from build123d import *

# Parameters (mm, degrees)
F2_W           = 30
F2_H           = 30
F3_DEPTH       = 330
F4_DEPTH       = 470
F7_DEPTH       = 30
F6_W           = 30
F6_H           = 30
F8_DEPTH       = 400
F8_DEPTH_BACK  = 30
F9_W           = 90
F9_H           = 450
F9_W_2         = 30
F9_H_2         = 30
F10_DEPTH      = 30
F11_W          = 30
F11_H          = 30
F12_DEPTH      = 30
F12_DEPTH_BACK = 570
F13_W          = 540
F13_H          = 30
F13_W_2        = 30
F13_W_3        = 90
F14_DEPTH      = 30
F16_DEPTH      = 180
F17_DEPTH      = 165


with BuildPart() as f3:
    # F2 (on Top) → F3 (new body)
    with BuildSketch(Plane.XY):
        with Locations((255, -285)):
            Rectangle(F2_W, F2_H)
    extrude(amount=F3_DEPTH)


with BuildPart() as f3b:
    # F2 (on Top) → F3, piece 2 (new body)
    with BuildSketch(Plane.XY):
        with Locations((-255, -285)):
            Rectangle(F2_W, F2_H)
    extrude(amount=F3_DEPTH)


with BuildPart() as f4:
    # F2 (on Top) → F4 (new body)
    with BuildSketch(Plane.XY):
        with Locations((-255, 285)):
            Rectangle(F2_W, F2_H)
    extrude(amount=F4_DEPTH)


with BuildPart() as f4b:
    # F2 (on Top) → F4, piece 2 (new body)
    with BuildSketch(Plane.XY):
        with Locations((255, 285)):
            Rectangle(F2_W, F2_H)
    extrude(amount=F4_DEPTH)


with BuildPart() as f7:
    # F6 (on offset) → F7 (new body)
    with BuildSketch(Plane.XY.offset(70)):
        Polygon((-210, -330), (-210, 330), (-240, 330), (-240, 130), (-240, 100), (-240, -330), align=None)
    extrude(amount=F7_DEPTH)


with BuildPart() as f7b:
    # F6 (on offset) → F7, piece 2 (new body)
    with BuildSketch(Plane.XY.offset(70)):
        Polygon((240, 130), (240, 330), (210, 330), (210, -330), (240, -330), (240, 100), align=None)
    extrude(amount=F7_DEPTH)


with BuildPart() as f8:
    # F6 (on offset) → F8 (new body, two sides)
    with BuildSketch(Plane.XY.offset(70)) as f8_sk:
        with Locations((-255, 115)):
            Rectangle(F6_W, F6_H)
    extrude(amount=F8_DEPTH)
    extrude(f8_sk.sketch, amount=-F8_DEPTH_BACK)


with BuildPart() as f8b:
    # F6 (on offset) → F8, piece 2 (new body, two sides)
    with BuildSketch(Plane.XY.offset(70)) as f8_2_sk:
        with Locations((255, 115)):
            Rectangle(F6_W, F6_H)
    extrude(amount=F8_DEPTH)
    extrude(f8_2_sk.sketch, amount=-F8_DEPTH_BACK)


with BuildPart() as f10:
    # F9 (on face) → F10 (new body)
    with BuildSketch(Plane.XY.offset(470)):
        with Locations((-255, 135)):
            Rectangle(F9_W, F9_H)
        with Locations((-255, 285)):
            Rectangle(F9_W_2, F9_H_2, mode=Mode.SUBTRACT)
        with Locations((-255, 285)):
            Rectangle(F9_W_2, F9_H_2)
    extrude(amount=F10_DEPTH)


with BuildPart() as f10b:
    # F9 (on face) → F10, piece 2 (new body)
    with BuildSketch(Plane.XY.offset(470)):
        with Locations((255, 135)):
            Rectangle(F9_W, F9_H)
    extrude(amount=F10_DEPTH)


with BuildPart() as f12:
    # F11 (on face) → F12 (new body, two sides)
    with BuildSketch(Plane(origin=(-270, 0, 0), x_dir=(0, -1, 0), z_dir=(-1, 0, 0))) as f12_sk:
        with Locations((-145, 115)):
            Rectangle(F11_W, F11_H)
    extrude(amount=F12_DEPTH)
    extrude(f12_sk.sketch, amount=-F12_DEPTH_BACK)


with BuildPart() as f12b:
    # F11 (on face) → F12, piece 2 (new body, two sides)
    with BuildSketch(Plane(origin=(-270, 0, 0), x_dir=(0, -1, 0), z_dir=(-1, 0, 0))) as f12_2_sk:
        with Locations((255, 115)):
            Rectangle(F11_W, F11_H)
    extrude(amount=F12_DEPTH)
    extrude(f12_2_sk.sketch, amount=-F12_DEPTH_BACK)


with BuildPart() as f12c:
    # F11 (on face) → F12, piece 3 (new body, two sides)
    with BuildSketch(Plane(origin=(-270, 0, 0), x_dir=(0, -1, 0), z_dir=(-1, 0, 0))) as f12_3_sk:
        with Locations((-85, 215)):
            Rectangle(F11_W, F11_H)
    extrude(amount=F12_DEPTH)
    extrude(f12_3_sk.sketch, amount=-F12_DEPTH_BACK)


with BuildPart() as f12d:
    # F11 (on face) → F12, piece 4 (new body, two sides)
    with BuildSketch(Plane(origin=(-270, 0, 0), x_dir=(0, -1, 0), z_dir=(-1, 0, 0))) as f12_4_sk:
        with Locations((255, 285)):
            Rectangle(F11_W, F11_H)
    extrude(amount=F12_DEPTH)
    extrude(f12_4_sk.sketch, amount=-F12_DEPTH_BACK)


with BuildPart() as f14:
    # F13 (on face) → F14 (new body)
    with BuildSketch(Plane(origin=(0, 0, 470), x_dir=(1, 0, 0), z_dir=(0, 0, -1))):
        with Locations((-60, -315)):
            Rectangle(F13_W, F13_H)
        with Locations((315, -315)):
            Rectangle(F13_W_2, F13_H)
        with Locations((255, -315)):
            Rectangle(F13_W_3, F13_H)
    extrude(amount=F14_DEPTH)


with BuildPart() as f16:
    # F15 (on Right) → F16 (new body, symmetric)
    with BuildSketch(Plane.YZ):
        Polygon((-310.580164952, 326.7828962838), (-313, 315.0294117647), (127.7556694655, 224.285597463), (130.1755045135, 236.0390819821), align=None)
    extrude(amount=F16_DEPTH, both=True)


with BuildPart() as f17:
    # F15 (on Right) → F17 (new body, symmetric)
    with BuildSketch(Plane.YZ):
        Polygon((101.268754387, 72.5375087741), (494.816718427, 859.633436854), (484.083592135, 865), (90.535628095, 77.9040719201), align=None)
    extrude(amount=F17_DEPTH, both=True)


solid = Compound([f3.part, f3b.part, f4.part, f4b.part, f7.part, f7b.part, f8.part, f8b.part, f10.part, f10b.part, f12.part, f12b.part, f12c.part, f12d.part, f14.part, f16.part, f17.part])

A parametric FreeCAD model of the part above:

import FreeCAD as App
import Part
import Sketcher


def add_polygon(sketch, points):
    """Adds a closed chain of lines whose ends are joined by coincident constraints."""
    first, n = sketch.GeometryCount, len(points)
    for a, b in zip(points, points[1:] + points[:1]):
        sketch.addGeometry(Part.LineSegment(App.Vector(*a, 0), App.Vector(*b, 0)), False)
    for i in range(n):
        sketch.addConstraint(Sketcher.Constraint("Coincident", first + i, 2, first + (i + 1) % n, 1))

doc = App.newDocument("Part")
params = doc.addObject("Spreadsheet::Sheet", "Params")
for row, (alias, value) in enumerate([
    ("sketch1_width", "30 mm"),
    ("pad1_length", "330 mm"),
    ("sketch2_width", "30 mm"),
    ("pad2_length", "330 mm"),
    ("sketch3_width", "30 mm"),
    ("pad3_length", "470 mm"),
    ("sketch4_width", "30 mm"),
    ("pad4_length", "470 mm"),
    ("sketch5_width", "30 mm"),
    ("sketch5_height", "660 mm"),
    ("pad5_length", "30 mm"),
    ("sketch6_width", "30 mm"),
    ("sketch6_height", "660 mm"),
    ("pad6_length", "30 mm"),
    ("sketch7_width", "30 mm"),
    ("pad7_length", "400 mm"),
    ("pad7_length2", "30 mm"),
    ("sketch8_width", "30 mm"),
    ("pad8_length", "400 mm"),
    ("pad8_length2", "30 mm"),
    ("sketch9_width", "90 mm"),
    ("sketch9_height", "450 mm"),
    ("pad9_length", "30 mm"),
    ("sketch10_width", "90 mm"),
    ("sketch10_height", "450 mm"),
    ("pad10_length", "30 mm"),
    ("sketch11_width", "30 mm"),
    ("pad11_length", "30 mm"),
    ("pad11_length2", "570 mm"),
    ("sketch12_width", "30 mm"),
    ("pad12_length", "30 mm"),
    ("pad12_length2", "570 mm"),
    ("sketch13_width", "30 mm"),
    ("pad13_length", "30 mm"),
    ("pad13_length2", "570 mm"),
    ("sketch14_width", "30 mm"),
    ("pad14_length", "30 mm"),
    ("pad14_length2", "570 mm"),
    ("sketch15_width", "660 mm"),
    ("sketch15_height", "30 mm"),
    ("pad15_length", "30 mm"),
    ("sketch16_length", "12 mm"),
    ("sketch16_length2", "450 mm"),
    ("pad16_length", "360 mm"),
    ("sketch17_length", "880 mm"),
    ("sketch17_length2", "12 mm"),
    ("pad17_length", "330 mm"),
], start=1):
    params.set(f"A{row}", alias)
    params.set(f"B{row}", "=" + value)
    params.setAlias(f"B{row}", alias)

body = doc.addObject("PartDesign::Body", "Body")

# Sketch on XY plane
sketch1 = doc.addObject("Sketcher::SketchObject", "Sketch")
body.addObject(sketch1)
sketch1.AttachmentSupport = (doc.XY_Plane, [""])
sketch1.MapMode = "FlatFace"
add_polygon(sketch1, [(240, -270), (240, -300), (270, -300), (270, -270)])  # lines 0-3
sketch1.addConstraint([
    Sketcher.Constraint("Vertical", 0),
    Sketcher.Constraint("Horizontal", 1),
    Sketcher.Constraint("Vertical", 2),
    Sketcher.Constraint("Horizontal", 3),
    Sketcher.Constraint("Equal", 3, 0),
    Sketcher.Constraint("DistanceX", 1, 1, 1, 2, 30.0),
    Sketcher.Constraint("DistanceX", -1, 1, 0, 2, 240.0),
    Sketcher.Constraint("DistanceY", 0, 2, -1, 1, 300.0),
])
sketch1.setExpression("Constraints[9]", "Params.sketch1_width")
pad1 = doc.addObject("PartDesign::Pad", "Pad")
body.addObject(pad1)
pad1.Profile = sketch1
pad1.setExpression("Length", "Params.pad1_length")
body2 = doc.addObject("PartDesign::Body", "Body001")

# Sketch on XY plane
sketch2 = doc.addObject("Sketcher::SketchObject", "Sketch001")
body2.addObject(sketch2)
sketch2.AttachmentSupport = (doc.getObject("XY_Plane001"), [""])
sketch2.MapMode = "FlatFace"
add_polygon(sketch2, [(-270, -270), (-270, -300), (-240, -300), (-240, -270)])  # lines 0-3
sketch2.addConstraint([
    Sketcher.Constraint("Vertical", 0),
    Sketcher.Constraint("Horizontal", 1),
    Sketcher.Constraint("Vertical", 2),
    Sketcher.Constraint("Horizontal", 3),
    Sketcher.Constraint("Equal", 3, 0),
    Sketcher.Constraint("DistanceX", 1, 1, 1, 2, 30.0),
    Sketcher.Constraint("DistanceX", 0, 2, -1, 1, 270.0),
    Sketcher.Constraint("DistanceY", 0, 2, -1, 1, 300.0),
])
sketch2.setExpression("Constraints[9]", "Params.sketch2_width")
pad2 = doc.addObject("PartDesign::Pad", "Pad001")
body2.addObject(pad2)
pad2.Profile = sketch2
pad2.setExpression("Length", "Params.pad2_length")
body3 = doc.addObject("PartDesign::Body", "Body002")

# Sketch on XY plane
sketch3 = doc.addObject("Sketcher::SketchObject", "Sketch002")
body3.addObject(sketch3)
sketch3.AttachmentSupport = (doc.getObject("XY_Plane002"), [""])
sketch3.MapMode = "FlatFace"
add_polygon(sketch3, [(-270, 300), (-270, 270), (-240, 270), (-240, 300)])  # lines 0-3
sketch3.addConstraint([
    Sketcher.Constraint("Vertical", 0),
    Sketcher.Constraint("Horizontal", 1),
    Sketcher.Constraint("Vertical", 2),
    Sketcher.Constraint("Horizontal", 3),
    Sketcher.Constraint("Equal", 3, 0),
    Sketcher.Constraint("DistanceX", 1, 1, 1, 2, 30.0),
    Sketcher.Constraint("DistanceX", 0, 2, -1, 1, 270.0),
    Sketcher.Constraint("DistanceY", -1, 1, 0, 2, 270.0),
])
sketch3.setExpression("Constraints[9]", "Params.sketch3_width")
pad3 = doc.addObject("PartDesign::Pad", "Pad002")
body3.addObject(pad3)
pad3.Profile = sketch3
pad3.setExpression("Length", "Params.pad3_length")
body4 = doc.addObject("PartDesign::Body", "Body003")

# Sketch on XY plane
sketch4 = doc.addObject("Sketcher::SketchObject", "Sketch003")
body4.addObject(sketch4)
sketch4.AttachmentSupport = (doc.getObject("XY_Plane003"), [""])
sketch4.MapMode = "FlatFace"
add_polygon(sketch4, [(240, 300), (240, 270), (270, 270), (270, 300)])  # lines 0-3
sketch4.addConstraint([
    Sketcher.Constraint("Vertical", 0),
    Sketcher.Constraint("Horizontal", 1),
    Sketcher.Constraint("Vertical", 2),
    Sketcher.Constraint("Horizontal", 3),
    Sketcher.Constraint("Equal", 3, 0),
    Sketcher.Constraint("DistanceX", 1, 1, 1, 2, 30.0),
    Sketcher.Constraint("DistanceX", -1, 1, 0, 2, 240.0),
    Sketcher.Constraint("DistanceY", -1, 1, 0, 2, 270.0),
])
sketch4.setExpression("Constraints[9]", "Params.sketch4_width")
pad4 = doc.addObject("PartDesign::Pad", "Pad003")
body4.addObject(pad4)
pad4.Profile = sketch4
pad4.setExpression("Length", "Params.pad4_length")
body5 = doc.addObject("PartDesign::Body", "Body004")

# Sketch on XY plane
sketch5 = doc.addObject("Sketcher::SketchObject", "Sketch004")
body5.addObject(sketch5)
sketch5.AttachmentSupport = (doc.getObject("XY_Plane004"), [""])
sketch5.MapMode = "FlatFace"
sketch5.AttachmentOffset = App.Placement(App.Vector(0, 0, 70), App.Rotation())
add_polygon(sketch5, [(-210, -330), (-210, 330), (-240, 330), (-240, -330)])  # lines 0-3
sketch5.addConstraint([
    Sketcher.Constraint("Vertical", 0),
    Sketcher.Constraint("Horizontal", 1),
    Sketcher.Constraint("Vertical", 2),
    Sketcher.Constraint("Horizontal", 3),
    Sketcher.Constraint("DistanceX", 1, 2, 1, 1, 30.0),
    Sketcher.Constraint("DistanceY", 0, 1, 0, 2, 660.0),
    Sketcher.Constraint("DistanceX", 0, 2, -1, 1, 210.0),
    Sketcher.Constraint("DistanceY", -1, 1, 0, 2, 330.0),
])
sketch5.setExpression("Constraints[8]", "Params.sketch5_width")
sketch5.setExpression("Constraints[9]", "Params.sketch5_height")
pad5 = doc.addObject("PartDesign::Pad", "Pad004")
body5.addObject(pad5)
pad5.Profile = sketch5
pad5.setExpression("Length", "Params.pad5_length")
body6 = doc.addObject("PartDesign::Body", "Body005")

# Sketch on XY plane
sketch6 = doc.addObject("Sketcher::SketchObject", "Sketch005")
body6.addObject(sketch6)
sketch6.AttachmentSupport = (doc.getObject("XY_Plane005"), [""])
sketch6.MapMode = "FlatFace"
sketch6.AttachmentOffset = App.Placement(App.Vector(0, 0, 70), App.Rotation())
add_polygon(sketch6, [(240, 330), (210, 330), (210, -330), (240, -330)])  # lines 0-3
sketch6.addConstraint([
    Sketcher.Constraint("Horizontal", 0),
    Sketcher.Constraint("Vertical", 1),
    Sketcher.Constraint("Horizontal", 2),
    Sketcher.Constraint("Vertical", 3),
    Sketcher.Constraint("DistanceX", 0, 2, 0, 1, 30.0),
    Sketcher.Constraint("DistanceY", 1, 2, 1, 1, 660.0),
    Sketcher.Constraint("DistanceX", -1, 1, 0, 2, 210.0),
    Sketcher.Constraint("DistanceY", -1, 1, 0, 2, 330.0),
])
sketch6.setExpression("Constraints[8]", "Params.sketch6_width")
sketch6.setExpression("Constraints[9]", "Params.sketch6_height")
pad6 = doc.addObject("PartDesign::Pad", "Pad005")
body6.addObject(pad6)
pad6.Profile = sketch6
pad6.setExpression("Length", "Params.pad6_length")
body7 = doc.addObject("PartDesign::Body", "Body006")

# Sketch on XY plane
sketch7 = doc.addObject("Sketcher::SketchObject", "Sketch006")
body7.addObject(sketch7)
sketch7.AttachmentSupport = (doc.getObject("XY_Plane006"), [""])
sketch7.MapMode = "FlatFace"
sketch7.AttachmentOffset = App.Placement(App.Vector(0, 0, 70), App.Rotation())
add_polygon(sketch7, [(-270, 130), (-270, 100), (-240, 100), (-240, 130)])  # lines 0-3
sketch7.addConstraint([
    Sketcher.Constraint("Vertical", 0),
    Sketcher.Constraint("Horizontal", 1),
    Sketcher.Constraint("Vertical", 2),
    Sketcher.Constraint("Horizontal", 3),
    Sketcher.Constraint("Equal", 3, 0),
    Sketcher.Constraint("DistanceX", 1, 1, 1, 2, 30.0),
    Sketcher.Constraint("DistanceX", 0, 2, -1, 1, 270.0),
    Sketcher.Constraint("DistanceY", -1, 1, 0, 2, 100.0),
])
sketch7.setExpression("Constraints[9]", "Params.sketch7_width")
pad7 = doc.addObject("PartDesign::Pad", "Pad006")
body7.addObject(pad7)
pad7.Profile = sketch7
pad7.Type = "TwoLengths"
pad7.setExpression("Length", "Params.pad7_length")
pad7.setExpression("Length2", "Params.pad7_length2")
body8 = doc.addObject("PartDesign::Body", "Body007")

# Sketch on XY plane
sketch8 = doc.addObject("Sketcher::SketchObject", "Sketch007")
body8.addObject(sketch8)
sketch8.AttachmentSupport = (doc.getObject("XY_Plane007"), [""])
sketch8.MapMode = "FlatFace"
sketch8.AttachmentOffset = App.Placement(App.Vector(0, 0, 70), App.Rotation())
add_polygon(sketch8, [(240, 130), (240, 100), (270, 100), (270, 130)])  # lines 0-3
sketch8.addConstraint([
    Sketcher.Constraint("Vertical", 0),
    Sketcher.Constraint("Horizontal", 1),
    Sketcher.Constraint("Vertical", 2),
    Sketcher.Constraint("Horizontal", 3),
    Sketcher.Constraint("Equal", 3, 0),
    Sketcher.Constraint("DistanceX", 1, 1, 1, 2, 30.0),
    Sketcher.Constraint("DistanceX", -1, 1, 0, 2, 240.0),
    Sketcher.Constraint("DistanceY", -1, 1, 0, 2, 100.0),
])
sketch8.setExpression("Constraints[9]", "Params.sketch8_width")
pad8 = doc.addObject("PartDesign::Pad", "Pad007")
body8.addObject(pad8)
pad8.Profile = sketch8
pad8.Type = "TwoLengths"
pad8.setExpression("Length", "Params.pad8_length")
pad8.setExpression("Length2", "Params.pad8_length2")
body9 = doc.addObject("PartDesign::Body", "Body008")

# Sketch on XY plane
sketch9 = doc.addObject("Sketcher::SketchObject", "Sketch008")
body9.addObject(sketch9)
sketch9.AttachmentSupport = (doc.getObject("XY_Plane008"), [""])
sketch9.MapMode = "FlatFace"
sketch9.AttachmentOffset = App.Placement(App.Vector(0, 0, 470), App.Rotation())
add_polygon(sketch9, [(-300, 360), (-300, -90), (-210, -90), (-210, 360)])  # lines 0-3
sketch9.addConstraint([
    Sketcher.Constraint("Vertical", 0),
    Sketcher.Constraint("Horizontal", 1),
    Sketcher.Constraint("Vertical", 2),
    Sketcher.Constraint("Horizontal", 3),
    Sketcher.Constraint("DistanceX", 1, 1, 1, 2, 90.0),
    Sketcher.Constraint("DistanceY", 0, 2, 0, 1, 450.0),
    Sketcher.Constraint("DistanceX", 0, 2, -1, 1, 300.0),
    Sketcher.Constraint("DistanceY", 0, 2, -1, 1, 90.0),
])
sketch9.setExpression("Constraints[8]", "Params.sketch9_width")
sketch9.setExpression("Constraints[9]", "Params.sketch9_height")
pad9 = doc.addObject("PartDesign::Pad", "Pad008")
body9.addObject(pad9)
pad9.Profile = sketch9
pad9.setExpression("Length", "Params.pad9_length")
body10 = doc.addObject("PartDesign::Body", "Body009")

# Sketch on XY plane
sketch10 = doc.addObject("Sketcher::SketchObject", "Sketch009")
body10.addObject(sketch10)
sketch10.AttachmentSupport = (doc.getObject("XY_Plane009"), [""])
sketch10.MapMode = "FlatFace"
sketch10.AttachmentOffset = App.Placement(App.Vector(0, 0, 470), App.Rotation())
add_polygon(sketch10, [(210, 360), (210, -90), (300, -90), (300, 360)])  # lines 0-3
sketch10.addConstraint([
    Sketcher.Constraint("Vertical", 0),
    Sketcher.Constraint("Horizontal", 1),
    Sketcher.Constraint("Vertical", 2),
    Sketcher.Constraint("Horizontal", 3),
    Sketcher.Constraint("DistanceX", 1, 1, 1, 2, 90.0),
    Sketcher.Constraint("DistanceY", 0, 2, 0, 1, 450.0),
    Sketcher.Constraint("DistanceX", -1, 1, 0, 2, 210.0),
    Sketcher.Constraint("DistanceY", 0, 2, -1, 1, 90.0),
])
sketch10.setExpression("Constraints[8]", "Params.sketch10_width")
sketch10.setExpression("Constraints[9]", "Params.sketch10_height")
pad10 = doc.addObject("PartDesign::Pad", "Pad009")
body10.addObject(pad10)
pad10.Profile = sketch10
pad10.setExpression("Length", "Params.pad10_length")
body11 = doc.addObject("PartDesign::Body", "Body010")

# Sketch on YZ plane
sketch11 = doc.addObject("Sketcher::SketchObject", "Sketch010")
body11.addObject(sketch11)
sketch11.AttachmentSupport = (doc.getObject("YZ_Plane010"), [""])
sketch11.MapMode = "FlatFace"
sketch11.AttachmentOffset = App.Placement(App.Vector(0, 0, -270), App.Rotation())
add_polygon(sketch11, [(160, 130), (160, 100), (130, 100), (130, 130)])  # lines 0-3
sketch11.addConstraint([
    Sketcher.Constraint("Vertical", 0),
    Sketcher.Constraint("Horizontal", 1),
    Sketcher.Constraint("Vertical", 2),
    Sketcher.Constraint("Horizontal", 3),
    Sketcher.Constraint("Equal", 3, 0),
    Sketcher.Constraint("DistanceX", 1, 2, 1, 1, 30.0),
    Sketcher.Constraint("DistanceX", -1, 1, 0, 2, 160.0),
    Sketcher.Constraint("DistanceY", -1, 1, 0, 2, 100.0),
])
sketch11.setExpression("Constraints[9]", "Params.sketch11_width")
pad11 = doc.addObject("PartDesign::Pad", "Pad010")
body11.addObject(pad11)
pad11.Profile = sketch11
pad11.Type = "TwoLengths"
pad11.setExpression("Length", "Params.pad11_length")
pad11.setExpression("Length2", "Params.pad11_length2")
pad11.Reversed = True
body12 = doc.addObject("PartDesign::Body", "Body011")

# Sketch on YZ plane
sketch12 = doc.addObject("Sketcher::SketchObject", "Sketch011")
body12.addObject(sketch12)
sketch12.AttachmentSupport = (doc.getObject("YZ_Plane011"), [""])
sketch12.MapMode = "FlatFace"
sketch12.AttachmentOffset = App.Placement(App.Vector(0, 0, -270), App.Rotation())
add_polygon(sketch12, [(-240, 130), (-240, 100), (-270, 100), (-270, 130)])  # lines 0-3
sketch12.addConstraint([
    Sketcher.Constraint("Vertical", 0),
    Sketcher.Constraint("Horizontal", 1),
    Sketcher.Constraint("Vertical", 2),
    Sketcher.Constraint("Horizontal", 3),
    Sketcher.Constraint("Equal", 3, 0),
    Sketcher.Constraint("DistanceX", 1, 2, 1, 1, 30.0),
    Sketcher.Constraint("DistanceX", 0, 2, -1, 1, 240.0),
    Sketcher.Constraint("DistanceY", -1, 1, 0, 2, 100.0),
])
sketch12.setExpression("Constraints[9]", "Params.sketch12_width")
pad12 = doc.addObject("PartDesign::Pad", "Pad011")
body12.addObject(pad12)
pad12.Profile = sketch12
pad12.Type = "TwoLengths"
pad12.setExpression("Length", "Params.pad12_length")
pad12.setExpression("Length2", "Params.pad12_length2")
pad12.Reversed = True
body13 = doc.addObject("PartDesign::Body", "Body012")

# Sketch on YZ plane
sketch13 = doc.addObject("Sketcher::SketchObject", "Sketch012")
body13.addObject(sketch13)
sketch13.AttachmentSupport = (doc.getObject("YZ_Plane012"), [""])
sketch13.MapMode = "FlatFace"
sketch13.AttachmentOffset = App.Placement(App.Vector(0, 0, -270), App.Rotation())
add_polygon(sketch13, [(100, 230), (100, 200), (70, 200), (70, 230)])  # lines 0-3
sketch13.addConstraint([
    Sketcher.Constraint("Vertical", 0),
    Sketcher.Constraint("Horizontal", 1),
    Sketcher.Constraint("Vertical", 2),
    Sketcher.Constraint("Horizontal", 3),
    Sketcher.Constraint("Equal", 3, 0),
    Sketcher.Constraint("DistanceX", 1, 2, 1, 1, 30.0),
    Sketcher.Constraint("DistanceX", -1, 1, 0, 2, 100.0),
    Sketcher.Constraint("DistanceY", -1, 1, 0, 2, 200.0),
])
sketch13.setExpression("Constraints[9]", "Params.sketch13_width")
pad13 = doc.addObject("PartDesign::Pad", "Pad012")
body13.addObject(pad13)
pad13.Profile = sketch13
pad13.Type = "TwoLengths"
pad13.setExpression("Length", "Params.pad13_length")
pad13.setExpression("Length2", "Params.pad13_length2")
pad13.Reversed = True
body14 = doc.addObject("PartDesign::Body", "Body013")

# Sketch on YZ plane
sketch14 = doc.addObject("Sketcher::SketchObject", "Sketch013")
body14.addObject(sketch14)
sketch14.AttachmentSupport = (doc.getObject("YZ_Plane013"), [""])
sketch14.MapMode = "FlatFace"
sketch14.AttachmentOffset = App.Placement(App.Vector(0, 0, -270), App.Rotation())
add_polygon(sketch14, [(-240, 300), (-240, 270), (-270, 270), (-270, 300)])  # lines 0-3
sketch14.addConstraint([
    Sketcher.Constraint("Vertical", 0),
    Sketcher.Constraint("Horizontal", 1),
    Sketcher.Constraint("Vertical", 2),
    Sketcher.Constraint("Horizontal", 3),
    Sketcher.Constraint("Equal", 3, 0),
    Sketcher.Constraint("DistanceX", 1, 2, 1, 1, 30.0),
    Sketcher.Constraint("DistanceX", 0, 2, -1, 1, 240.0),
    Sketcher.Constraint("DistanceY", -1, 1, 0, 2, 270.0),
])
sketch14.setExpression("Constraints[9]", "Params.sketch14_width")
pad14 = doc.addObject("PartDesign::Pad", "Pad013")
body14.addObject(pad14)
pad14.Profile = sketch14
pad14.Type = "TwoLengths"
pad14.setExpression("Length", "Params.pad14_length")
pad14.setExpression("Length2", "Params.pad14_length2")
pad14.Reversed = True
body15 = doc.addObject("PartDesign::Body", "Body014")

# Sketch on XY plane
sketch15 = doc.addObject("Sketcher::SketchObject", "Sketch014")
body15.addObject(sketch15)
sketch15.AttachmentSupport = (doc.getObject("XY_Plane014"), [""])
sketch15.MapMode = "FlatFace"
sketch15.AttachmentOffset = App.Placement(App.Vector(0, 0, 470), App.Rotation())
add_polygon(sketch15, [(-330, 300), (-330, 330), (330, 330), (330, 300)])  # lines 0-3
sketch15.addConstraint([
    Sketcher.Constraint("Vertical", 0),
    Sketcher.Constraint("Horizontal", 1),
    Sketcher.Constraint("Vertical", 2),
    Sketcher.Constraint("Horizontal", 3),
    Sketcher.Constraint("DistanceX", 1, 1, 1, 2, 660.0),
    Sketcher.Constraint("DistanceY", 0, 1, 0, 2, 30.0),
    Sketcher.Constraint("DistanceX", 0, 2, -1, 1, 330.0),
    Sketcher.Constraint("DistanceY", -1, 1, 0, 2, 330.0),
])
sketch15.setExpression("Constraints[8]", "Params.sketch15_width")
sketch15.setExpression("Constraints[9]", "Params.sketch15_height")
pad15 = doc.addObject("PartDesign::Pad", "Pad014")
body15.addObject(pad15)
pad15.Profile = sketch15
pad15.setExpression("Length", "Params.pad15_length")
pad15.Reversed = True
body16 = doc.addObject("PartDesign::Body", "Body015")

# Sketch on YZ plane
sketch16 = doc.addObject("Sketcher::SketchObject", "Sketch015")
body16.addObject(sketch16)
sketch16.AttachmentSupport = (doc.getObject("YZ_Plane015"), [""])
sketch16.MapMode = "FlatFace"
add_polygon(sketch16, [(-311, 327), (-313, 315), (128, 224), (130, 236)])  # lines 0-3
sketch16.addConstraint([
    Sketcher.Constraint("Perpendicular", 0, 1),
    Sketcher.Constraint("Perpendicular", 1, 2),
    Sketcher.Constraint("Perpendicular", 2, 3),
    Sketcher.Constraint("Distance", 0, 12.0),
    Sketcher.Constraint("Distance", 1, 450.0),
    Sketcher.Constraint("DistanceX", 0, 2, -1, 1, 313.0),
    Sketcher.Constraint("DistanceY", 1, 2, 3, 2, 102.497299),
    Sketcher.Constraint("DistanceY", -1, 1, 0, 2, 315.029412),
])
sketch16.setExpression("Constraints[7]", "Params.sketch16_length")
sketch16.setExpression("Constraints[8]", "Params.sketch16_length2")
pad16 = doc.addObject("PartDesign::Pad", "Pad015")
body16.addObject(pad16)
pad16.Profile = sketch16
pad16.setExpression("Length", "Params.pad16_length")
pad16.Midplane = True
body17 = doc.addObject("PartDesign::Body", "Body016")

# Sketch on YZ plane
sketch17 = doc.addObject("Sketcher::SketchObject", "Sketch016")
body17.addObject(sketch17)
sketch17.AttachmentSupport = (doc.getObject("YZ_Plane016"), [""])
sketch17.MapMode = "FlatFace"
add_polygon(sketch17, [(101, 73), (495, 860), (484, 865), (91, 78)])  # lines 0-3
sketch17.addConstraint([
    Sketcher.Constraint("Perpendicular", 0, 1),
    Sketcher.Constraint("Perpendicular", 1, 2),
    Sketcher.Constraint("Perpendicular", 2, 3),
    Sketcher.Constraint("Distance", 0, 880.0),
    Sketcher.Constraint("Distance", 1, 12.0),
    Sketcher.Constraint("DistanceY", -1, 1, 1, 2, 865.0),
    Sketcher.Constraint("DistanceX", -1, 1, 0, 2, 494.816718),
    Sketcher.Constraint("DistanceX", -1, 1, 2, 2, 90.535628),
])
sketch17.setExpression("Constraints[7]", "Params.sketch17_length")
sketch17.setExpression("Constraints[8]", "Params.sketch17_length2")
pad17 = doc.addObject("PartDesign::Pad", "Pad016")
body17.addObject(pad17)
pad17.Profile = sketch17
pad17.setExpression("Length", "Params.pad17_length")
pad17.Midplane = True

doc.recompute()
